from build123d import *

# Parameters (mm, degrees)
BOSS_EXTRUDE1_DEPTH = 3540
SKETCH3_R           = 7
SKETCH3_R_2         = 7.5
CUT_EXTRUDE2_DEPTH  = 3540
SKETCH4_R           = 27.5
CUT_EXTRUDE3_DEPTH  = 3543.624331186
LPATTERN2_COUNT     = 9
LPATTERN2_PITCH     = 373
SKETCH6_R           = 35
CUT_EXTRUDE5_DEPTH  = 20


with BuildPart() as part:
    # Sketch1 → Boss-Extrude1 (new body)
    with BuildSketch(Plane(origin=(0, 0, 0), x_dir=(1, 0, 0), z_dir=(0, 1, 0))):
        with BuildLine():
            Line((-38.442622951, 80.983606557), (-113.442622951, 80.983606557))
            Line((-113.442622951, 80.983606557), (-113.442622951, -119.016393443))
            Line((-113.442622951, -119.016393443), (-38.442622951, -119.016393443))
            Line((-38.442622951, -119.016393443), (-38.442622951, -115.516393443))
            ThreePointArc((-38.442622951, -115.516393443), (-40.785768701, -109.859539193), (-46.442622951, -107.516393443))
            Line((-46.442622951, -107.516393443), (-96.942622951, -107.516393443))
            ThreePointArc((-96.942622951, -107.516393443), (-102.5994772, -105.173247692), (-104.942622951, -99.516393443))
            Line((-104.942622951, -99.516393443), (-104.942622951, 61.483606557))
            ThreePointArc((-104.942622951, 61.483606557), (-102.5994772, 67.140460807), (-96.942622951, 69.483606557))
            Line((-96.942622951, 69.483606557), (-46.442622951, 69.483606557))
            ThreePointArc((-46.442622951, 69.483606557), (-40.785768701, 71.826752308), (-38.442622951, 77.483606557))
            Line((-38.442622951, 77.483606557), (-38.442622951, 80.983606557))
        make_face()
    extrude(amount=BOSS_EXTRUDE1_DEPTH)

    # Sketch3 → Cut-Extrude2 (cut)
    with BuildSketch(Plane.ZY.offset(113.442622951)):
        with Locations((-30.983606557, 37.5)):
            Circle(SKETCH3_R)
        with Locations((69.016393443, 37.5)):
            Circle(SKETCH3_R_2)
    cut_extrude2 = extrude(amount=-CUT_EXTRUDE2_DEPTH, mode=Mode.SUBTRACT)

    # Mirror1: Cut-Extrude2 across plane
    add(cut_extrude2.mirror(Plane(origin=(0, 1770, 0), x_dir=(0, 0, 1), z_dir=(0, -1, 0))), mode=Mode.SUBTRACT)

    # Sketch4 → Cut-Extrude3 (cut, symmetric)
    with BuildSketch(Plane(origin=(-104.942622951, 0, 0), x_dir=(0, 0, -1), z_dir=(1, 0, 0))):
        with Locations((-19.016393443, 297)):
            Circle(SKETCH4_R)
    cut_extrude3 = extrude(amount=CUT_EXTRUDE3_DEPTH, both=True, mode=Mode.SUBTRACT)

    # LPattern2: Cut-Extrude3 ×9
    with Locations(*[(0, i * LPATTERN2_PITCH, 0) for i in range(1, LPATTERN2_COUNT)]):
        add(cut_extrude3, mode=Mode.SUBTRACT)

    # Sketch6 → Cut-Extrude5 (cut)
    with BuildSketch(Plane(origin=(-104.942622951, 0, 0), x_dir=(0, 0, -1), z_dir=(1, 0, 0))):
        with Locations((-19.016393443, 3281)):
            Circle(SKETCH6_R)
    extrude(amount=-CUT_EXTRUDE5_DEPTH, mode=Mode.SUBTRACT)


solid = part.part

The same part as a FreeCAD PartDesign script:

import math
import FreeCAD as App
import Part
import Sketcher
Q = App.Units.Quantity

doc = App.newDocument("Part")
body = doc.addObject("PartDesign::Body", "Body")

sketch1 = body.newObject("Sketcher::SketchObject", "Sketch")
sketch1.AttachmentSupport = (doc.getObject("XZ_Plane"), [""])
sketch1.MapMode = "FlatFace"
sketch1.addGeometry([
    Part.LineSegment(App.Vector(-38.4, -81, 0), App.Vector(-113.4, -81, 0)),
    Part.LineSegment(App.Vector(-113.4, -81, 0), App.Vector(-113.4, 119, 0)),
    Part.LineSegment(App.Vector(-113.4, 119, 0), App.Vector(-38.4, 119, 0)),
    Part.LineSegment(App.Vector(-38.4, 119, 0), App.Vector(-38.4, 115.5, 0)),
    Part.ArcOfCircle(Part.Circle(App.Vector(-46.4, 115.5, 0), App.Vector(0, 0, 1), 8), math.radians(-90), math.radians(0)),
    Part.LineSegment(App.Vector(-46.4, 107.5, 0), App.Vector(-96.9, 107.5, 0)),
    Part.ArcOfCircle(Part.Circle(App.Vector(-96.9, 99.5, 0), App.Vector(0, 0, 1), 8), math.radians(90), math.radians(180)),
    Part.LineSegment(App.Vector(-104.9, 99.5, 0), App.Vector(-104.9, -61.5, 0)),
    Part.ArcOfCircle(Part.Circle(App.Vector(-96.9, -61.5, 0), App.Vector(0, 0, 1), 8), math.radians(180), math.radians(270)),
    Part.LineSegment(App.Vector(-96.9, -69.5, 0), App.Vector(-46.4, -69.5, 0)),
    Part.ArcOfCircle(Part.Circle(App.Vector(-46.4, -77.5, 0), App.Vector(0, 0, 1), 8), math.radians(0), math.radians(90)),
    Part.LineSegment(App.Vector(-38.4, -77.5, 0), App.Vector(-38.4, -81, 0)),
], False)
sketch1.addConstraint([
    Sketcher.Constraint("Coincident", 0, 2, 1, 1),
    Sketcher.Constraint("Coincident", 1, 2, 2, 1),
    Sketcher.Constraint("Coincident", 2, 2, 3, 1),
    Sketcher.Constraint("Tangent", 3, 2, 4, 2),
    Sketcher.Constraint("Tangent", 4, 1, 5, 1),
    Sketcher.Constraint("Tangent", 5, 2, 6, 1),
    Sketcher.Constraint("Tangent", 6, 2, 7, 1),
    Sketcher.Constraint("Tangent", 7, 2, 8, 1),
    Sketcher.Constraint("Tangent", 8, 2, 9, 1),
    Sketcher.Constraint("Tangent", 9, 2, 10, 2),
    Sketcher.Constraint("Tangent", 10, 1, 11, 1),
    Sketcher.Constraint("Coincident", 11, 2, 0, 1),
    Sketcher.Constraint("Horizontal", 0),
    Sketcher.Constraint("Vertical", 1),
    Sketcher.Constraint("Horizontal", 2),
    Sketcher.Constraint("Vertical", 3),
    Sketcher.Constraint("Horizontal", 5),
    Sketcher.Constraint("Vertical", 7),
    Sketcher.Constraint("Horizontal", 9),
    Sketcher.Constraint("Vertical", 11),
    Sketcher.Constraint("Equal", 4, 6),
    Sketcher.Constraint("Equal", 6, 8),
    Sketcher.Constraint("Equal", 8, 10),
    Sketcher.Constraint("Vertical", 4, 3, 10, 3),
    Sketcher.Constraint("Equal", 3, 11),
    Sketcher.Constraint("Radius", 4, Q("8 mm")),
    Sketcher.Constraint("DistanceX", 0, 2, 0, 1, Q("75 mm")),
    Sketcher.Constraint("DistanceY", 1, 1, 1, 2, Q("200 mm")),
    Sketcher.Constraint("DistanceY", 7, 2, 7, 1, Q("161 mm")),
    Sketcher.Constraint("DistanceX", 5, 2, 5, 1, Q("50.5 mm")),
    Sketcher.Constraint("DistanceX", 4, 3, -1, 1, Q("46.442623 mm")),
    Sketcher.Constraint("DistanceY", -1, 1, 4, 3, Q("115.516393 mm")),
])
pad1 = body.newObject("PartDesign::Pad", "Pad")
pad1.Profile = sketch1
pad1.Length = 3540
pad1.Reversed = True

sketch2 = body.newObject("Sketcher::SketchObject", "Sketch001")
sketch2.AttachmentSupport = (doc.getObject("YZ_Plane"), [""])
sketch2.MapMode = "FlatFace"
sketch2.AttachmentOffset = App.Placement(App.Vector(0, 0, -113.442623), App.Rotation())
sketch2.addGeometry([
    Part.Circle(App.Vector(38, -31, 0), App.Vector(0, 0, 1), 7),
    Part.Circle(App.Vector(38, 69, 0), App.Vector(0, 0, 1), 8),
], False)
sketch2.addConstraint([
    Sketcher.Constraint("Vertical", 0, 3, 1, 3),
    Sketcher.Constraint("Diameter", 0, Q("14 mm")),
    Sketcher.Constraint("Diameter", 1, Q("15 mm")),
    Sketcher.Constraint("DistanceY", 0, 3, 1, 3, Q("100 mm")),
    Sketcher.Constraint("DistanceX", -1, 1, 0, 3, Q("37.5 mm")),
    Sketcher.Constraint("DistanceY", 0, 3, -1, 1, Q("30.983607 mm")),
])
pocket1 = body.newObject("PartDesign::Pocket", "Pocket")
pocket1.Profile = sketch2
pocket1.Length = 3540
pocket1.Reversed = True
doc.recompute()

datumplane = body.newObject("PartDesign::Plane", "DatumPlane")
datumplane.AttachmentSupport = (doc.getObject("XZ_Plane"), [""])
datumplane.MapMode = "FlatFace"
datumplane.AttachmentOffset = App.Placement(App.Vector(0, 0, -1770), App.Rotation())
mirrored = body.newObject("PartDesign::Mirrored", "Mirrored")
mirrored.Originals = [pocket1]
mirrored.MirrorPlane = (datumplane, [""])
body.Tip = mirrored

sketch3 = body.newObject("Sketcher::SketchObject", "Sketch002")
sketch3.AttachmentSupport = (doc.getObject("YZ_Plane"), [""])
sketch3.MapMode = "FlatFace"
sketch3.AttachmentOffset = App.Placement(App.Vector(0, 0, -104.942623), App.Rotation())
sketch3.addGeometry(Part.Circle(App.Vector(297, 19, 0), App.Vector(0, 0, 1), 28), False)
sketch3.addConstraint([
    Sketcher.Constraint("Diameter", 0, Q("55 mm")),
    Sketcher.Constraint("DistanceX", -1, 1, 0, 3, Q("297 mm")),
    Sketcher.Constraint("DistanceY", -1, 1, 0, 3, Q("19.016393 mm")),
])
pocket2 = body.newObject("PartDesign::Pocket", "Pocket001")
pocket2.Profile = sketch3
pocket2.Length = 7087.248662
pocket2.Midplane = True
doc.recompute()

linearpattern = body.newObject("PartDesign::LinearPattern", "LinearPattern")
linearpattern.Originals = [pocket2]
linearpattern.Direction = (doc.getObject("Y_Axis"), [""])
linearpattern.Mode = "offset"
linearpattern.Offset = 373
linearpattern.Occurrences = 9
body.Tip = linearpattern

sketch4 = body.newObject("Sketcher::SketchObject", "Sketch003")
sketch4.AttachmentSupport = (doc.getObject("YZ_Plane"), [""])
sketch4.MapMode = "FlatFace"
sketch4.AttachmentOffset = App.Placement(App.Vector(0, 0, -104.942623), App.Rotation())
sketch4.addGeometry(Part.Circle(App.Vector(3281, 19, 0), App.Vector(0, 0, 1), 35), False)
sketch4.addConstraint([
    Sketcher.Constraint("Diameter", 0, Q("70 mm")),
    Sketcher.Constraint("DistanceX", -1, 1, 0, 3, Q("3281 mm")),
    Sketcher.Constraint("DistanceY", -1, 1, 0, 3, Q("19.016393 mm")),
])
pocket3 = body.newObject("PartDesign::Pocket", "Pocket002")
pocket3.Profile = sketch4
pocket3.Length = 20

doc.recompute()
